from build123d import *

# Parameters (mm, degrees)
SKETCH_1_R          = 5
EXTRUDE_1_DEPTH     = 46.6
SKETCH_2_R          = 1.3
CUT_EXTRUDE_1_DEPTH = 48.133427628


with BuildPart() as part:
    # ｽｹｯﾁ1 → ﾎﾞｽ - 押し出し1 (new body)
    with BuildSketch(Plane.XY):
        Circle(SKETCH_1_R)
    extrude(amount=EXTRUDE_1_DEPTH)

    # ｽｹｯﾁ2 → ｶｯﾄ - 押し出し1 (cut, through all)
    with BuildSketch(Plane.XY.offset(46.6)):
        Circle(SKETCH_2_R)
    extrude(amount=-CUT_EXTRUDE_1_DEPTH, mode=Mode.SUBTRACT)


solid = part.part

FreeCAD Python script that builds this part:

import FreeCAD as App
import Part
import Sketcher
Q = App.Units.Quantity

doc = App.newDocument("Part")
body = doc.addObject("PartDesign::Body", "Body")

sketch1 = doc.addObject("Sketcher::SketchObject", "Sketch")
body.addObject(sketch1)
sketch1.AttachmentSupport = (doc.XY_Plane, [""])
sketch1.MapMode = "FlatFace"
sketch1.addGeometry(Part.Circle(App.Vector(0, 0, 0), App.Vector(0, 0, 1), 5), False)
sketch1.addConstraint([
    Sketcher.Constraint("Coincident", 0, 3, -1, 1),
    Sketcher.Constraint("Diameter", 0, Q("10 mm")),
])
pad1 = doc.addObject("PartDesign::Pad", "Pad")
body.addObject(pad1)
pad1.Profile = sketch1
pad1.Length = 46.6

sketch2 = doc.addObject("Sketcher::SketchObject", "Sketch001")
body.addObject(sketch2)
sketch2.AttachmentSupport = (doc.XY_Plane, [""])
sketch2.MapMode = "FlatFace"
sketch2.AttachmentOffset = App.Placement(App.Vector(0, 0, 46.6), App.Rotation())
sketch2.addGeometry(Part.Circle(App.Vector(0, 0, 0), App.Vector(0, 0, 1), 1.3), False)
sketch2.addConstraint([
    Sketcher.Constraint("Coincident", 0, 3, -1, 1),
    Sketcher.Constraint("Diameter", 0, Q("2.6 mm")),
])
pocket1 = doc.addObject("PartDesign::Pocket", "Pocket")
body.addObject(pocket1)
pocket1.Profile = sketch2
pocket1.Type = "ThroughAll"

doc.recompute()
